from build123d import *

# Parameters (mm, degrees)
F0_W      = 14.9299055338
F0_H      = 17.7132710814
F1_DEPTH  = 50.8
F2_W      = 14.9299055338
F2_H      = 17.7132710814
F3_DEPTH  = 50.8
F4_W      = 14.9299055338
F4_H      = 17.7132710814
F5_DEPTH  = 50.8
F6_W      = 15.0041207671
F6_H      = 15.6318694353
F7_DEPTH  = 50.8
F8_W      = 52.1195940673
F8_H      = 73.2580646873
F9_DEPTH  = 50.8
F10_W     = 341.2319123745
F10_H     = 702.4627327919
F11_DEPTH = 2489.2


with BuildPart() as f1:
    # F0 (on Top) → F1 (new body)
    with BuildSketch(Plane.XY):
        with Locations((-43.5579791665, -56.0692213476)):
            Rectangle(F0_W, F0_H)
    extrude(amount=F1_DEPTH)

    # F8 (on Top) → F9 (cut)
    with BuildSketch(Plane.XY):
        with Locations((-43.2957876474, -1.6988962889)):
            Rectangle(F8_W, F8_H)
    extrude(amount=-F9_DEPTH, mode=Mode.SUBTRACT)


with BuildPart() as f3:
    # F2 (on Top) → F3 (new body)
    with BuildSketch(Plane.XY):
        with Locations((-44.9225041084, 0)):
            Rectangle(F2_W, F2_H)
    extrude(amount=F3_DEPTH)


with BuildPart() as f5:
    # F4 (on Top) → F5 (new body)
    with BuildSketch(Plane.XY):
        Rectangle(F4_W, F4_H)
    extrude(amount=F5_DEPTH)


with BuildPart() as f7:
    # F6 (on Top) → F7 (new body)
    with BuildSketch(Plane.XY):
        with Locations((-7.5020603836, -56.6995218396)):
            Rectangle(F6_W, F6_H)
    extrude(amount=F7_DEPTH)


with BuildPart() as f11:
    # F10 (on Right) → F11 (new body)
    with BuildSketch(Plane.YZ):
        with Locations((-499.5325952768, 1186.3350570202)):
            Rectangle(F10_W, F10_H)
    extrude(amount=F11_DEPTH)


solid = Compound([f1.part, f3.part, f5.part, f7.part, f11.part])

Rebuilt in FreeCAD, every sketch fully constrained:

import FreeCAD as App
import Part
import Sketcher
from FreeCAD import Vector
Q = App.Units.Quantity

doc = App.newDocument("Part")
body = doc.addObject("PartDesign::Body", "Body")

sketch1 = doc.addObject("Sketcher::SketchObject", "Sketch")
body.addObject(sketch1)
sketch1.AttachmentSupport = (doc.XY_Plane, [""])
sketch1.MapMode = "FlatFace"
sketch1.addGeometry(Part.LineSegment(Vector(-51.022932, -47.212586, 0), Vector(-51.022932, -64.925857, 0)), False)
sketch1.addGeometry(Part.LineSegment(Vector(-51.022932, -64.925857, 0), Vector(-36.093026, -64.925857, 0)), False)
sketch1.addGeometry(Part.LineSegment(Vector(-36.093026, -64.925857, 0), Vector(-36.093026, -47.212586, 0)), False)
sketch1.addGeometry(Part.LineSegment(Vector(-36.093026, -47.212586, 0), Vector(-51.022932, -47.212586, 0)), False)
sketch1.addConstraint(Sketcher.Constraint("Coincident", 0, 2, 1, 1))
sketch1.addConstraint(Sketcher.Constraint("Coincident", 1, 2, 2, 1))
sketch1.addConstraint(Sketcher.Constraint("Coincident", 2, 2, 3, 1))
sketch1.addConstraint(Sketcher.Constraint("Coincident", 3, 2, 0, 1))
sketch1.addConstraint(Sketcher.Constraint("Vertical", 0))
sketch1.addConstraint(Sketcher.Constraint("Horizontal", 1))
sketch1.addConstraint(Sketcher.Constraint("Vertical", 2))
sketch1.addConstraint(Sketcher.Constraint("Horizontal", 3))
sketch1.addConstraint(Sketcher.Constraint("DistanceY", 0, 2, 0, 1, 17.713271))
sketch1.addConstraint(Sketcher.Constraint("DistanceX", 1, 1, 1, 2, 14.929906))
sketch1.addConstraint(Sketcher.Constraint("DistanceX", 0, 2, -1, 1, 51.022932))
sketch1.addConstraint(Sketcher.Constraint("DistanceY", 0, 2, -1, 1, 64.925857))
pad1 = doc.addObject("PartDesign::Pad", "Pad")
body.addObject(pad1)
pad1.Profile = sketch1
pad1.Length = Q("2 in")

sketch2 = doc.addObject("Sketcher::SketchObject", "Sketch001")
body.addObject(sketch2)
sketch2.AttachmentSupport = (doc.XY_Plane, [""])
sketch2.MapMode = "FlatFace"
sketch2.addGeometry(Part.LineSegment(Vector(-69.355585, 34.930136, 0), Vector(-69.355585, -38.327929, 0)), False)
sketch2.addGeometry(Part.LineSegment(Vector(-69.355585, -38.327929, 0), Vector(-17.235991, -38.327929, 0)), False)
sketch2.addGeometry(Part.LineSegment(Vector(-17.235991, -38.327929, 0), Vector(-17.235991, 34.930136, 0)), False)
sketch2.addGeometry(Part.LineSegment(Vector(-17.235991, 34.930136, 0), Vector(-69.355585, 34.930136, 0)), False)
sketch2.addConstraint(Sketcher.Constraint("Coincident", 0, 2, 1, 1))
sketch2.addConstraint(Sketcher.Constraint("Coincident", 1, 2, 2, 1))
sketch2.addConstraint(Sketcher.Constraint("Coincident", 2, 2, 3, 1))
sketch2.addConstraint(Sketcher.Constraint("Coincident", 3, 2, 0, 1))
sketch2.addConstraint(Sketcher.Constraint("Vertical", 0))
sketch2.addConstraint(Sketcher.Constraint("Horizontal", 1))
sketch2.addConstraint(Sketcher.Constraint("Vertical", 2))
sketch2.addConstraint(Sketcher.Constraint("Horizontal", 3))
sketch2.addConstraint(Sketcher.Constraint("DistanceX", 1, 1, 1, 2, 52.119594))
sketch2.addConstraint(Sketcher.Constraint("DistanceY", 0, 2, 0, 1, 73.258065))
sketch2.addConstraint(Sketcher.Constraint("DistanceY", 0, 2, -1, 1, 38.327929))
sketch2.addConstraint(Sketcher.Constraint("DistanceX", 1, 2, -1, 1, 17.235991))
pocket1 = doc.addObject("PartDesign::Pocket", "Pocket")
body.addObject(pocket1)
pocket1.Profile = sketch2
pocket1.Length = Q("2 in")
body2 = doc.addObject("PartDesign::Body", "Body001")

sketch3 = doc.addObject("Sketcher::SketchObject", "Sketch002")
body2.addObject(sketch3)
sketch3.AttachmentSupport = (doc.getObject("XY_Plane001"), [""])
sketch3.MapMode = "FlatFace"
sketch3.addGeometry(Part.LineSegment(Vector(-52.387457, 8.856636, 0), Vector(-52.387457, -8.856636, 0)), False)
sketch3.addGeometry(Part.LineSegment(Vector(-52.387457, -8.856636, 0), Vector(-37.457551, -8.856636, 0)), False)
sketch3.addGeometry(Part.LineSegment(Vector(-37.457551, -8.856636, 0), Vector(-37.457551, 8.856636, 0)), False)
sketch3.addGeometry(Part.LineSegment(Vector(-37.457551, 8.856636, 0), Vector(-52.387457, 8.856636, 0)), False)
sketch3.addConstraint(Sketcher.Constraint("Coincident", 0, 2, 1, 1))
sketch3.addConstraint(Sketcher.Constraint("Coincident", 1, 2, 2, 1))
sketch3.addConstraint(Sketcher.Constraint("Coincident", 2, 2, 3, 1))
sketch3.addConstraint(Sketcher.Constraint("Coincident", 3, 2, 0, 1))
sketch3.addConstraint(Sketcher.Constraint("Vertical", 0))
sketch3.addConstraint(Sketcher.Constraint("Horizontal", 1))
sketch3.addConstraint(Sketcher.Constraint("Vertical", 2))
sketch3.addConstraint(Sketcher.Constraint("Horizontal", 3))
sketch3.addConstraint(Sketcher.Constraint("DistanceY", 0, 2, 0, 1, 17.713271))
sketch3.addConstraint(Sketcher.Constraint("DistanceX", 1, 1, 1, 2, 14.929906))
sketch3.addConstraint(Sketcher.Constraint("DistanceX", 1, 2, -1, 1, 37.457551))
sketch3.addConstraint(Sketcher.Constraint("DistanceY", 0, 2, -1, 1, 8.856636))
pad2 = doc.addObject("PartDesign::Pad", "Pad001")
body2.addObject(pad2)
pad2.Profile = sketch3
pad2.Length = Q("2 in")
body3 = doc.addObject("PartDesign::Body", "Body002")

sketch4 = doc.addObject("Sketcher::SketchObject", "Sketch003")
body3.addObject(sketch4)
sketch4.AttachmentSupport = (doc.getObject("XY_Plane002"), [""])
sketch4.MapMode = "FlatFace"
sketch4.addGeometry(Part.LineSegment(Vector(-7.464953, 8.856636, 0), Vector(-7.464953, -8.856636, 0)), False)
sketch4.addGeometry(Part.LineSegment(Vector(-7.464953, -8.856636, 0), Vector(7.464953, -8.856636, 0)), False)
sketch4.addGeometry(Part.LineSegment(Vector(7.464953, -8.856636, 0), Vector(7.464953, 8.856636, 0)), False)
sketch4.addGeometry(Part.LineSegment(Vector(7.464953, 8.856636, 0), Vector(-7.464953, 8.856636, 0)), False)
sketch4.addConstraint(Sketcher.Constraint("Coincident", 0, 2, 1, 1))
sketch4.addConstraint(Sketcher.Constraint("Coincident", 1, 2, 2, 1))
sketch4.addConstraint(Sketcher.Constraint("Coincident", 2, 2, 3, 1))
sketch4.addConstraint(Sketcher.Constraint("Coincident", 3, 2, 0, 1))
sketch4.addConstraint(Sketcher.Constraint("Vertical", 0))
sketch4.addConstraint(Sketcher.Constraint("Horizontal", 1))
sketch4.addConstraint(Sketcher.Constraint("Vertical", 2))
sketch4.addConstraint(Sketcher.Constraint("Horizontal", 3))
sketch4.addConstraint(Sketcher.Constraint("Symmetric", 0, 2, 2, 2, -1, 1))
sketch4.addConstraint(Sketcher.Constraint("DistanceY", 0, 2, 0, 1, 17.713271))
sketch4.addConstraint(Sketcher.Constraint("DistanceX", 1, 1, 1, 2, 14.929906))
pad3 = doc.addObject("PartDesign::Pad", "Pad002")
body3.addObject(pad3)
pad3.Profile = sketch4
pad3.Length = Q("2 in")
body4 = doc.addObject("PartDesign::Body", "Body003")

sketch5 = doc.addObject("Sketcher::SketchObject", "Sketch004")
body4.addObject(sketch5)
sketch5.AttachmentSupport = (doc.getObject("XY_Plane003"), [""])
sketch5.MapMode = "FlatFace"
sketch5.addGeometry(Part.LineSegment(Vector(-15.004121, -48.883587, 0), Vector(-15.004121, -64.515457, 0)), False)
sketch5.addGeometry(Part.LineSegment(Vector(-15.004121, -64.515457, 0), Vector(0, -64.515457, 0)), False)
sketch5.addGeometry(Part.LineSegment(Vector(0, -64.515457, 0), Vector(0, -48.883587, 0)), False)
sketch5.addGeometry(Part.LineSegment(Vector(0, -48.883587, 0), Vector(-15.004121, -48.883587, 0)), False)
sketch5.addConstraint(Sketcher.Constraint("Coincident", 0, 2, 1, 1))
sketch5.addConstraint(Sketcher.Constraint("Coincident", 1, 2, 2, 1))
sketch5.addConstraint(Sketcher.Constraint("Coincident", 2, 2, 3, 1))
sketch5.addConstraint(Sketcher.Constraint("Coincident", 3, 2, 0, 1))
sketch5.addConstraint(Sketcher.Constraint("Vertical", 0))
sketch5.addConstraint(Sketcher.Constraint("Horizontal", 1))
sketch5.addConstraint(Sketcher.Constraint("Vertical", 2))
sketch5.addConstraint(Sketcher.Constraint("Horizontal", 3))
sketch5.addConstraint(Sketcher.Constraint("PointOnObject", 1, 2, -2))
sketch5.addConstraint(Sketcher.Constraint("DistanceX", 1, 1, 1, 2, 15.004121))
sketch5.addConstraint(Sketcher.Constraint("DistanceY", 0, 2, 0, 1, 15.631869))
sketch5.addConstraint(Sketcher.Constraint("DistanceY", 0, 2, -1, 1, 64.515457))
pad4 = doc.addObject("PartDesign::Pad", "Pad003")
body4.addObject(pad4)
pad4.Profile = sketch5
pad4.Length = Q("2 in")
body5 = doc.addObject("PartDesign::Body", "Body004")

sketch6 = doc.addObject("Sketcher::SketchObject", "Sketch005")
body5.addObject(sketch6)
sketch6.AttachmentSupport = (doc.getObject("YZ_Plane004"), [""])
sketch6.MapMode = "FlatFace"
sketch6.addGeometry(Part.LineSegment(Vector(-670.148551, 1537.566423, 0), Vector(-670.148551, 835.103691, 0)), False)
sketch6.addGeometry(Part.LineSegment(Vector(-670.148551, 835.103691, 0), Vector(-328.916639, 835.103691, 0)), False)
sketch6.addGeometry(Part.LineSegment(Vector(-328.916639, 835.103691, 0), Vector(-328.916639, 1537.566423, 0)), False)
sketch6.addGeometry(Part.LineSegment(Vector(-328.916639, 1537.566423, 0), Vector(-670.148551, 1537.566423, 0)), False)
sketch6.addConstraint(Sketcher.Constraint("Coincident", 0, 2, 1, 1))
sketch6.addConstraint(Sketcher.Constraint("Coincident", 1, 2, 2, 1))
sketch6.addConstraint(Sketcher.Constraint("Coincident", 2, 2, 3, 1))
sketch6.addConstraint(Sketcher.Constraint("Coincident", 3, 2, 0, 1))
sketch6.addConstraint(Sketcher.Constraint("Vertical", 0))
sketch6.addConstraint(Sketcher.Constraint("Horizontal", 1))
sketch6.addConstraint(Sketcher.Constraint("Vertical", 2))
sketch6.addConstraint(Sketcher.Constraint("Horizontal", 3))
sketch6.addConstraint(Sketcher.Constraint("DistanceX", 1, 1, 1, 2, 341.231912))
sketch6.addConstraint(Sketcher.Constraint("DistanceY", 0, 2, 0, 1, 702.462733))
sketch6.addConstraint(Sketcher.Constraint("DistanceX", 0, 2, -1, 1, 670.148551))
sketch6.addConstraint(Sketcher.Constraint("DistanceY", -1, 1, 0, 2, 835.103691))
pad5 = doc.addObject("PartDesign::Pad", "Pad004")
body5.addObject(pad5)
pad5.Profile = sketch6
pad5.Length = Q("98 in")

doc.recompute()
